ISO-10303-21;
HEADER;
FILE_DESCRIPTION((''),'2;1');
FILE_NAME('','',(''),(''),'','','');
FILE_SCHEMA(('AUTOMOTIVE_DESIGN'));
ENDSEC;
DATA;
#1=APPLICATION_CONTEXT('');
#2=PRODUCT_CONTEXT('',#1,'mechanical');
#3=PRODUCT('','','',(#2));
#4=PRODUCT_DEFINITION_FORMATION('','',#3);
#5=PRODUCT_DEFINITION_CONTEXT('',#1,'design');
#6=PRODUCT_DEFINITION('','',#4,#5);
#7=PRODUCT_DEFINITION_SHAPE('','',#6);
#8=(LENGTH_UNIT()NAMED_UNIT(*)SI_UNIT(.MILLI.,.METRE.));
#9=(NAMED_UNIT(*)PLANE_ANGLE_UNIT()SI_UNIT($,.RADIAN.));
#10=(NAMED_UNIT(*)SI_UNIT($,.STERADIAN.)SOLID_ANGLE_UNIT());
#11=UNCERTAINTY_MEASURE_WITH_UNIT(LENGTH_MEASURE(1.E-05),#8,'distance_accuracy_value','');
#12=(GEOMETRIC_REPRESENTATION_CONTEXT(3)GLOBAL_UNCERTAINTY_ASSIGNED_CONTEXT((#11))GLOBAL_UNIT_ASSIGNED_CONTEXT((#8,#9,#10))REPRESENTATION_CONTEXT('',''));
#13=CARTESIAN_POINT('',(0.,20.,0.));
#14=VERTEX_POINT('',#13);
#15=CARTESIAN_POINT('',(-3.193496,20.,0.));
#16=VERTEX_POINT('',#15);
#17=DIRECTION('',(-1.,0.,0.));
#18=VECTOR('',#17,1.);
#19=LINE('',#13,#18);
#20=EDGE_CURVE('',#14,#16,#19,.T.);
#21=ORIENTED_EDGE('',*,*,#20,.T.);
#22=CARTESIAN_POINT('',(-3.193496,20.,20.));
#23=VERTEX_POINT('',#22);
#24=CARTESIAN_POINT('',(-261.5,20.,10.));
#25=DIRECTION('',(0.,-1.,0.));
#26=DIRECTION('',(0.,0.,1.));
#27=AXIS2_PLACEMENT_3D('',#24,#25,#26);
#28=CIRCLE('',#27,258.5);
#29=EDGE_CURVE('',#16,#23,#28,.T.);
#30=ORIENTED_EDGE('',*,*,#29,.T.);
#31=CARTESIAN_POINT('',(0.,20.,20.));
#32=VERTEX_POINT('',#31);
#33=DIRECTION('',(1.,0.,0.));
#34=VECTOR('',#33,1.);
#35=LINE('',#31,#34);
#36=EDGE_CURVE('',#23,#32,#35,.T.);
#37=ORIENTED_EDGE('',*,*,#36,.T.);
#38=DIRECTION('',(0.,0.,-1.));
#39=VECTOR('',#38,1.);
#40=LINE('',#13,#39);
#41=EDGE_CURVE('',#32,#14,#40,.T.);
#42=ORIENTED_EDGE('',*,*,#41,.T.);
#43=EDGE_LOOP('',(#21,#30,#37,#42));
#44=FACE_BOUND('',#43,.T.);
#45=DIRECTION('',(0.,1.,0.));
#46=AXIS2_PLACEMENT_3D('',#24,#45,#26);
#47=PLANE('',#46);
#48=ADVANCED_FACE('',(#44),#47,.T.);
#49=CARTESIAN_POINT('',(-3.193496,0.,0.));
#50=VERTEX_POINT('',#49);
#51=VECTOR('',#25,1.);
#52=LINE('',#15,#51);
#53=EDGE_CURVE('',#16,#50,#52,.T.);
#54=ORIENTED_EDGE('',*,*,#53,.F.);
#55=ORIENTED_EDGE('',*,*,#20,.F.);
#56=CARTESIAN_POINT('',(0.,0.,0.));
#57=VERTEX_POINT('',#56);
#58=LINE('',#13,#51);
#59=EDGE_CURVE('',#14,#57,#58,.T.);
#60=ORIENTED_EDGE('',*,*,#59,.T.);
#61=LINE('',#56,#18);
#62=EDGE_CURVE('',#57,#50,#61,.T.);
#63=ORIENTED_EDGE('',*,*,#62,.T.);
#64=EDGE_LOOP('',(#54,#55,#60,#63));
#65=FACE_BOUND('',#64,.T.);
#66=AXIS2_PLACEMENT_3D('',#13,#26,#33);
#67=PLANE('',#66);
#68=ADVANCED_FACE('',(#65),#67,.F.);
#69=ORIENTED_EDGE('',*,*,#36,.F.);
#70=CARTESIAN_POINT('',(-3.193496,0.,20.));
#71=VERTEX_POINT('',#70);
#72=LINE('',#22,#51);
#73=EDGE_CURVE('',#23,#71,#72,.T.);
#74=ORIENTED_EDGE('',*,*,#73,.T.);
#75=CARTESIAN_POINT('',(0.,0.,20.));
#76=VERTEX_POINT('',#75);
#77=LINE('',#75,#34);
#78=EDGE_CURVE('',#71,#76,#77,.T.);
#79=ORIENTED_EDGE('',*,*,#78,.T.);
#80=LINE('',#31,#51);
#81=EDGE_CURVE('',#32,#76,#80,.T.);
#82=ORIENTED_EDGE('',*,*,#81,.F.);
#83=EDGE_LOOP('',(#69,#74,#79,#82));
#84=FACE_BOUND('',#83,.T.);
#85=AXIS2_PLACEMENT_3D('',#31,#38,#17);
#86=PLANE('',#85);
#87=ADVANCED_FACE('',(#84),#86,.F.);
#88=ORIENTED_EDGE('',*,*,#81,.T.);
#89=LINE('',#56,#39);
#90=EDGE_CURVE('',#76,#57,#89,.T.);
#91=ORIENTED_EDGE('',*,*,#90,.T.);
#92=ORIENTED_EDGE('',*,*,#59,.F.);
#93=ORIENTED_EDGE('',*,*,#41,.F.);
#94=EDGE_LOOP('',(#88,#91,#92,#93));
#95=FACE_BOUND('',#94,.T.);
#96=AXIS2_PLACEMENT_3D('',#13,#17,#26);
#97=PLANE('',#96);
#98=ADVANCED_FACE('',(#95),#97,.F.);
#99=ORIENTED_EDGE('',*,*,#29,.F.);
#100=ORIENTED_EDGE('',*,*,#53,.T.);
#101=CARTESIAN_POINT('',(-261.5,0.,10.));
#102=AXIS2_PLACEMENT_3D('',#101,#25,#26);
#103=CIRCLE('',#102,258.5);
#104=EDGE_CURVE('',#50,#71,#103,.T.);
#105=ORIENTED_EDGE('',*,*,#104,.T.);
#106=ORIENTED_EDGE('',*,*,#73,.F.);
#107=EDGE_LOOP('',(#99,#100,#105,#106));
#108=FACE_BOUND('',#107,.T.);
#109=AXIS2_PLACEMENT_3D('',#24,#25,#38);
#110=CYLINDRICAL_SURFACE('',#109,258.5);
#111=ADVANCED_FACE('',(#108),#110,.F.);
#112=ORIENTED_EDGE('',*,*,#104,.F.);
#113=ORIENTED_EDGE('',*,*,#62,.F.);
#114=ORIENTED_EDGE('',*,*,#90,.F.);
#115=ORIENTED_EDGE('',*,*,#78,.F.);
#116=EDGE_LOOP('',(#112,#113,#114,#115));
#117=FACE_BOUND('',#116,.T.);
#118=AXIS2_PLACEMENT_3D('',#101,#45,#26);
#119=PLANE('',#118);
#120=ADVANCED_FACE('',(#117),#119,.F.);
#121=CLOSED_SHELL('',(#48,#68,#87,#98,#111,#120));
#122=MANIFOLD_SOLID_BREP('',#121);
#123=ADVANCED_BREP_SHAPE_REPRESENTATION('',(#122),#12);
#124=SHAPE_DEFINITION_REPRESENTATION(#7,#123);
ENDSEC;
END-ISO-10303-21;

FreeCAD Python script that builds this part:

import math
import FreeCAD as App
import Part
import Sketcher

V = App.Vector

doc = App.newDocument("Part")
params = doc.addObject("Spreadsheet::Sheet", "Params")
for row, (alias, value) in enumerate([
    ("sketch1_radius", "258.5 mm"),
    ("sketch1_height", "20 mm"),
    ("pad1_length", "20 mm"),
], start=1):
    params.set(f"A{row}", alias)
    params.set(f"B{row}", "=" + value)
    params.setAlias(f"B{row}", alias)

body = doc.addObject("PartDesign::Body", "Body")

# Sketch on XZ plane
sketch1 = body.newObject("Sketcher::SketchObject", "Sketch")
sketch1.AttachmentSupport = (doc.getObject("XZ_Plane"), [""])
sketch1.MapMode = "FlatFace"
sketch1.addGeometry(Part.LineSegment(V(0, 20, 0), V(0, 0, 0)), False)
sketch1.addGeometry(Part.LineSegment(V(0, 0, 0), V(-3.2, 0, 0)), False)
sketch1.addGeometry(Part.ArcOfCircle(Part.Circle(V(-261.5, 10, 0), V(0, 0, 1), 258.5), math.radians(-2.22), math.radians(2.22)), False)
sketch1.addGeometry(Part.LineSegment(V(-3.2, 20, 0), V(0, 20, 0)), False)
sketch1.addConstraint(Sketcher.Constraint("Coincident", 0, 2, 1, 1))
sketch1.addConstraint(Sketcher.Constraint("Coincident", 1, 2, 2, 1))
sketch1.addConstraint(Sketcher.Constraint("Coincident", 2, 2, 3, 1))
sketch1.addConstraint(Sketcher.Constraint("Coincident", 3, 2, 0, 1))
sketch1.addConstraint(Sketcher.Constraint("Vertical", 0))
sketch1.addConstraint(Sketcher.Constraint("Horizontal", 1))
sketch1.addConstraint(Sketcher.Constraint("Horizontal", 3))
sketch1.addConstraint(Sketcher.Constraint("Coincident", 0, 2, -1, 1))
sketch1.addConstraint(Sketcher.Constraint("Vertical", 1, 2, 2, 2))
sketch1.addConstraint(Sketcher.Constraint("Radius", 2, 258.5))
sketch1.addConstraint(Sketcher.Constraint("DistanceY", 0, 2, 0, 1, 20.0))
sketch1.addConstraint(Sketcher.Constraint("DistanceX", 2, 3, -1, 1, 261.5))
sketch1.setExpression("Constraints[9]", "Params.sketch1_radius")
sketch1.setExpression("Constraints[10]", "Params.sketch1_height")
pad1 = body.newObject("PartDesign::Pad", "Pad")
pad1.Profile = sketch1
pad1.setExpression("Length", "Params.pad1_length")
pad1.Reversed = True

doc.recompute()
